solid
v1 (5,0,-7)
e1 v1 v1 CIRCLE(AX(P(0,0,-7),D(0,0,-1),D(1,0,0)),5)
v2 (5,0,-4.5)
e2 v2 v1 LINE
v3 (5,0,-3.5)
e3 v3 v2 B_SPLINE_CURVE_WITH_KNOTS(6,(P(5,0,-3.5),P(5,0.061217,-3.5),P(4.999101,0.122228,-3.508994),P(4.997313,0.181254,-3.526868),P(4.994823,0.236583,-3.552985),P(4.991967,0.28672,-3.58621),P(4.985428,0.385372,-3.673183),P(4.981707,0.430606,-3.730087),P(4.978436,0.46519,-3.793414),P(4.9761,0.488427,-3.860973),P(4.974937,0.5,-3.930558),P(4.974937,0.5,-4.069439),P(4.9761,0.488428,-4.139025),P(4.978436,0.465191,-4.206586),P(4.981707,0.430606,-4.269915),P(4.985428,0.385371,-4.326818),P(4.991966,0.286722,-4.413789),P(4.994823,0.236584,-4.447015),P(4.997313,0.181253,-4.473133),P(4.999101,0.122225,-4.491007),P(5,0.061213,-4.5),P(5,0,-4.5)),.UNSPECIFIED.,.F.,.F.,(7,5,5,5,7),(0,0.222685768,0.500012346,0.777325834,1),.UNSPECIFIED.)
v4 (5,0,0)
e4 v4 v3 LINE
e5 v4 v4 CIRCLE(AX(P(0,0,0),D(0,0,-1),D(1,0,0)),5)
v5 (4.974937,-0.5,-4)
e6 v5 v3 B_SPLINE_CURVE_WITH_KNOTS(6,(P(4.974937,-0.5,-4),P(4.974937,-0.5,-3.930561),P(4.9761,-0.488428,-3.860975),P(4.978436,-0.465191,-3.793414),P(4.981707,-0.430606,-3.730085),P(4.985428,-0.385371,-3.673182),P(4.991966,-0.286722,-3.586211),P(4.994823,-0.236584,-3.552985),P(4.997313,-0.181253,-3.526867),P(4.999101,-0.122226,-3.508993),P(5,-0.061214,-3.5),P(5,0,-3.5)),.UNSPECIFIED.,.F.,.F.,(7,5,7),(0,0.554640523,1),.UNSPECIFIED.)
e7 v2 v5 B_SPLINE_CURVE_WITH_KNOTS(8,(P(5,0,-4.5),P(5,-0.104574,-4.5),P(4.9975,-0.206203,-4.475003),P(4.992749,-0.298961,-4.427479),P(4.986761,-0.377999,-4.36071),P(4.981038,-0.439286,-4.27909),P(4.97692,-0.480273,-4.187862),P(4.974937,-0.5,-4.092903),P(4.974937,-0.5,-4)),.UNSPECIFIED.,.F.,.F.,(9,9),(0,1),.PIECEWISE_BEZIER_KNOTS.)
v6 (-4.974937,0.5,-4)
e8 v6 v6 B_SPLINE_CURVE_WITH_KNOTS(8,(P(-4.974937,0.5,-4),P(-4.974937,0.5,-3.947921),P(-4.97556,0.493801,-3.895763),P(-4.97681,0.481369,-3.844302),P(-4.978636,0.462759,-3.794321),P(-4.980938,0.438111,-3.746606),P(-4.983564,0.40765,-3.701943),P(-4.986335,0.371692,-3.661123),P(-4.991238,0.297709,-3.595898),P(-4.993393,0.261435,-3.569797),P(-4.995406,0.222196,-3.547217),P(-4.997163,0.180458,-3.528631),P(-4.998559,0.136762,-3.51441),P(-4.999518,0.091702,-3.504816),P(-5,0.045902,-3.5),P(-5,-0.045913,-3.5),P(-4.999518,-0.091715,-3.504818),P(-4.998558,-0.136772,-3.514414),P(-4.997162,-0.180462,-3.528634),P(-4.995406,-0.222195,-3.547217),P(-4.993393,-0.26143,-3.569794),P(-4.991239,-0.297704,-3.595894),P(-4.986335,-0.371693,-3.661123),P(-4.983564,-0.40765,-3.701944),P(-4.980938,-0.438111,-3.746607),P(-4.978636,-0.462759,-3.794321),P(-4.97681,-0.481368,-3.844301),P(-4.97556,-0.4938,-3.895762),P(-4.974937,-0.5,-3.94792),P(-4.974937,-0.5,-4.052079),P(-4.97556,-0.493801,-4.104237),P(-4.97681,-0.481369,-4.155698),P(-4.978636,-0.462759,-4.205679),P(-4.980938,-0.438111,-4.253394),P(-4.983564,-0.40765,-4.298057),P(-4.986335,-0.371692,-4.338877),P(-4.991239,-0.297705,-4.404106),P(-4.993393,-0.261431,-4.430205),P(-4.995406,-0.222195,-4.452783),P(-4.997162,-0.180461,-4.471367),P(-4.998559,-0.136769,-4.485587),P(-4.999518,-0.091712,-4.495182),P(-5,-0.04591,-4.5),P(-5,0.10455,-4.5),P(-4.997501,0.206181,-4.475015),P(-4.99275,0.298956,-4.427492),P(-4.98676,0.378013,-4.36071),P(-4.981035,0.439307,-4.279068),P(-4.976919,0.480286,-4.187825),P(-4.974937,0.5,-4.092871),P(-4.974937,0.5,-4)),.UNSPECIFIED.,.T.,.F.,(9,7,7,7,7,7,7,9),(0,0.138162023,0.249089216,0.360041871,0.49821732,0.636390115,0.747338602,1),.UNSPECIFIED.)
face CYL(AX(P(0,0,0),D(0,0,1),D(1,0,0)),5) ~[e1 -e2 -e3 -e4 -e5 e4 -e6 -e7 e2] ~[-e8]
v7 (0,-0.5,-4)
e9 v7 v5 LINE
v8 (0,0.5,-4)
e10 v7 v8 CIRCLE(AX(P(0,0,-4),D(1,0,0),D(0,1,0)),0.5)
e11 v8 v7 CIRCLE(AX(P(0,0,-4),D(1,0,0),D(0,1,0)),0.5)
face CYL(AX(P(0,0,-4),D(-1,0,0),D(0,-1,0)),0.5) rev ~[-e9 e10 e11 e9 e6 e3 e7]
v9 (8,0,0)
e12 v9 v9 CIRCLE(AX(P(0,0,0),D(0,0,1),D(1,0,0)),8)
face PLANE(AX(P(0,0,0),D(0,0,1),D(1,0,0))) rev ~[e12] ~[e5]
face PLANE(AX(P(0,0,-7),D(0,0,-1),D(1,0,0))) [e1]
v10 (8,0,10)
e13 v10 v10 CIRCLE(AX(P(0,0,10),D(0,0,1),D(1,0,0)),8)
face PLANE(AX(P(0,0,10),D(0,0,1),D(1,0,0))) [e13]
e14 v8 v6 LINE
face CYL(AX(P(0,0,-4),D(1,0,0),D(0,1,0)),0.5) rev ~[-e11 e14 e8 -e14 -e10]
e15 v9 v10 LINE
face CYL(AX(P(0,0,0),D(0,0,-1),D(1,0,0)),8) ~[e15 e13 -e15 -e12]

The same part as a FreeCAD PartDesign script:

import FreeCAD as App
import Part
import Sketcher

V = App.Vector

doc = App.newDocument("Part")
params = doc.addObject("Spreadsheet::Sheet", "Params")
for row, (alias, value) in enumerate([
    ("sketch1_diameter", "16 mm"),
    ("pad1_length", "10 mm"),
    ("sketch2_diameter", "10 mm"),
    ("pad2_length", "7 mm"),
    ("sketch3_diameter", "1 mm"),
    ("pocket1_length", "25 mm"),
    ("sketch4_diameter", "1 mm"),
    ("pocket2_length", "25 mm"),
], start=1):
    params.set(f"A{row}", alias)
    params.set(f"B{row}", "=" + value)
    params.setAlias(f"B{row}", alias)

body = doc.addObject("PartDesign::Body", "Body")

# Sketch on XY plane
sketch1 = body.newObject("Sketcher::SketchObject", "Sketch")
sketch1.AttachmentSupport = (doc.getObject("XY_Plane"), [""])
sketch1.MapMode = "FlatFace"
sketch1.addGeometry(Part.Circle(V(0, 0, 0), V(0, 0, 1), 8), False)
sketch1.addConstraint([
    Sketcher.Constraint("Coincident", 0, 3, -1, 1),
    Sketcher.Constraint("Diameter", 0, 16.0),
])
sketch1.setExpression("Constraints[1]", "Params.sketch1_diameter")
pad1 = body.newObject("PartDesign::Pad", "Pad")
pad1.Profile = sketch1
pad1.setExpression("Length", "Params.pad1_length")

# Sketch on XY plane
sketch2 = body.newObject("Sketcher::SketchObject", "Sketch001")
sketch2.AttachmentSupport = (doc.getObject("XY_Plane"), [""])
sketch2.MapMode = "FlatFace"
sketch2.addGeometry(Part.Circle(V(0, 0, 0), V(0, 0, 1), 5), False)
sketch2.addConstraint([
    Sketcher.Constraint("Coincident", 0, 3, -1, 1),
    Sketcher.Constraint("Diameter", 0, 10.0),
])
sketch2.setExpression("Constraints[1]", "Params.sketch2_diameter")
pad2 = body.newObject("PartDesign::Pad", "Pad001")
pad2.Profile = sketch2
pad2.setExpression("Length", "Params.pad2_length")
pad2.Reversed = True

# Sketch on YZ plane
sketch3 = body.newObject("Sketcher::SketchObject", "Sketch002")
sketch3.AttachmentSupport = (doc.getObject("YZ_Plane"), [""])
sketch3.MapMode = "FlatFace"
sketch3.addGeometry(Part.Circle(V(0, -4, 0), V(0, 0, 1), 0.5), False)
sketch3.addConstraint([
    Sketcher.Constraint("PointOnObject", 0, 3, -2),
    Sketcher.Constraint("Diameter", 0, 1.0),
    Sketcher.Constraint("DistanceY", 0, 3, -1, 1, 4.0),
])
sketch3.setExpression("Constraints[1]", "Params.sketch3_diameter")
pocket1 = body.newObject("PartDesign::Pocket", "Pocket")
pocket1.Profile = sketch3
pocket1.setExpression("Length", "Params.pocket1_length")

# Sketch on YZ plane
sketch4 = body.newObject("Sketcher::SketchObject", "Sketch003")
sketch4.AttachmentSupport = (doc.getObject("YZ_Plane"), [""])
sketch4.MapMode = "FlatFace"
sketch4.addGeometry(Part.Circle(V(0, -4, 0), V(0, 0, 1), 0.5), False)
sketch4.addConstraint([
    Sketcher.Constraint("PointOnObject", 0, 3, -2),
    Sketcher.Constraint("Diameter", 0, 1.0),
    Sketcher.Constraint("DistanceY", 0, 3, -1, 1, 4.0),
])
sketch4.setExpression("Constraints[1]", "Params.sketch4_diameter")
pocket2 = body.newObject("PartDesign::Pocket", "Pocket001")
pocket2.Profile = sketch4
pocket2.setExpression("Length", "Params.pocket2_length")
pocket2.Reversed = True

doc.recompute()
